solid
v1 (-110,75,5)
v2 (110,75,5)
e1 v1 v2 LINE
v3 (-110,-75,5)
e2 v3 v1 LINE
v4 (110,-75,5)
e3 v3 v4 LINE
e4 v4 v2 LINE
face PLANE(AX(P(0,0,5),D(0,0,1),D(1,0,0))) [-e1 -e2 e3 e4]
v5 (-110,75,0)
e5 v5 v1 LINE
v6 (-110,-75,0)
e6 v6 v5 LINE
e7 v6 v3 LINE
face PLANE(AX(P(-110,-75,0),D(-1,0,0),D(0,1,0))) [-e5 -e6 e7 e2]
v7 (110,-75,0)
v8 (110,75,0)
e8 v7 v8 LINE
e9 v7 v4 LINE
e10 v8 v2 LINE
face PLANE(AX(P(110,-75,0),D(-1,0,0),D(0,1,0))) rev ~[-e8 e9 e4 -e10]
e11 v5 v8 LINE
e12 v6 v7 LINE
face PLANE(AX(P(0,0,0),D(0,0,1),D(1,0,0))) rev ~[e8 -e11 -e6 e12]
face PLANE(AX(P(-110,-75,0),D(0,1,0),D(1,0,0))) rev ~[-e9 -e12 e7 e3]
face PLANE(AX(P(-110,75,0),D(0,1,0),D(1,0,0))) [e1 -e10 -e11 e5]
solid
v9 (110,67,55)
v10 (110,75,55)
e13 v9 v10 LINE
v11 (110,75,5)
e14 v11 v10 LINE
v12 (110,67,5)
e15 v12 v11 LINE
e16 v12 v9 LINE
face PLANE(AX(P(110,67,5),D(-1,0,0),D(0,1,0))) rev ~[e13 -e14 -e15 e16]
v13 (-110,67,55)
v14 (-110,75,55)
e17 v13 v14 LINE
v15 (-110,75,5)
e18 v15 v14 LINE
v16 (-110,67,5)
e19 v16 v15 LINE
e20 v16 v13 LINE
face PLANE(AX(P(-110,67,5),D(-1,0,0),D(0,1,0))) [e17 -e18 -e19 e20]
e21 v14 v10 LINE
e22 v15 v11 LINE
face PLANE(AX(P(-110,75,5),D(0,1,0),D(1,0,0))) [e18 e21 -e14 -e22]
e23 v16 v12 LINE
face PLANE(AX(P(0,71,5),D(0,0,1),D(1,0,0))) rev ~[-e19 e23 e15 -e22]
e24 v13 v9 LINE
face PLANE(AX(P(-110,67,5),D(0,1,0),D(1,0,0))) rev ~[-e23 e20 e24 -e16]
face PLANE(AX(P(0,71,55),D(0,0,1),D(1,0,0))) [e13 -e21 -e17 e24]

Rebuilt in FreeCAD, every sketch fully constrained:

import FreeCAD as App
import Part
import Sketcher
from FreeCAD import Vector
Q = App.Units.Quantity


def add_polygon(sketch, points):
    """Adds a closed chain of lines whose ends are joined by coincident constraints."""
    first, n = sketch.GeometryCount, len(points)
    for a, b in zip(points, points[1:] + points[:1]):
        sketch.addGeometry(Part.LineSegment(App.Vector(*a, 0), App.Vector(*b, 0)), False)
    for i in range(n):
        sketch.addConstraint(Sketcher.Constraint("Coincident", first + i, 2, first + (i + 1) % n, 1))

doc = App.newDocument("Part")
body = doc.addObject("PartDesign::Body", "Body")

# Sketch on XY plane
sketch1 = body.newObject("Sketcher::SketchObject", "Sketch")
sketch1.AttachmentSupport = (doc.getObject("XY_Plane"), [""])
sketch1.MapMode = "FlatFace"
add_polygon(sketch1, [(-110, 75), (-110, -75), (110, -75), (110, 75)])  # lines 0-3
sketch1.addConstraint([
    Sketcher.Constraint("Vertical", 0),
    Sketcher.Constraint("Horizontal", 1),
    Sketcher.Constraint("Vertical", 2),
    Sketcher.Constraint("Horizontal", 3),
    Sketcher.Constraint("Symmetric", 0, 2, 2, 2, -1, 1),
    Sketcher.Constraint("DistanceX", 1, 1, 1, 2, Q("220 mm")),
    Sketcher.Constraint("DistanceY", 0, 2, 0, 1, Q("150 mm")),
])
pad1 = body.newObject("PartDesign::Pad", "Pad")
pad1.Profile = sketch1
pad1.Length = 5
body2 = doc.addObject("PartDesign::Body", "Body001")

# Sketch on XY plane
sketch2 = body2.newObject("Sketcher::SketchObject", "Sketch001")
sketch2.AttachmentSupport = (doc.getObject("XY_Plane001"), [""])
sketch2.MapMode = "FlatFace"
sketch2.AttachmentOffset = App.Placement(Vector(0, 0, 5), App.Rotation())
add_polygon(sketch2, [(-110, 75), (-110, 67), (110, 67), (110, 75)])  # lines 0-3
sketch2.addConstraint([
    Sketcher.Constraint("Vertical", 0),
    Sketcher.Constraint("Horizontal", 1),
    Sketcher.Constraint("Vertical", 2),
    Sketcher.Constraint("Horizontal", 3),
    Sketcher.Constraint("DistanceX", 1, 1, 1, 2, Q("220 mm")),
    Sketcher.Constraint("DistanceY", 0, 2, 0, 1, Q("8 mm")),
    Sketcher.Constraint("DistanceX", 0, 2, -1, 1, Q("110 mm")),
    Sketcher.Constraint("DistanceY", -1, 1, 0, 2, Q("67 mm")),
])
pad2 = body2.newObject("PartDesign::Pad", "Pad001")
pad2.Profile = sketch2
pad2.Length = 50

doc.recompute()
